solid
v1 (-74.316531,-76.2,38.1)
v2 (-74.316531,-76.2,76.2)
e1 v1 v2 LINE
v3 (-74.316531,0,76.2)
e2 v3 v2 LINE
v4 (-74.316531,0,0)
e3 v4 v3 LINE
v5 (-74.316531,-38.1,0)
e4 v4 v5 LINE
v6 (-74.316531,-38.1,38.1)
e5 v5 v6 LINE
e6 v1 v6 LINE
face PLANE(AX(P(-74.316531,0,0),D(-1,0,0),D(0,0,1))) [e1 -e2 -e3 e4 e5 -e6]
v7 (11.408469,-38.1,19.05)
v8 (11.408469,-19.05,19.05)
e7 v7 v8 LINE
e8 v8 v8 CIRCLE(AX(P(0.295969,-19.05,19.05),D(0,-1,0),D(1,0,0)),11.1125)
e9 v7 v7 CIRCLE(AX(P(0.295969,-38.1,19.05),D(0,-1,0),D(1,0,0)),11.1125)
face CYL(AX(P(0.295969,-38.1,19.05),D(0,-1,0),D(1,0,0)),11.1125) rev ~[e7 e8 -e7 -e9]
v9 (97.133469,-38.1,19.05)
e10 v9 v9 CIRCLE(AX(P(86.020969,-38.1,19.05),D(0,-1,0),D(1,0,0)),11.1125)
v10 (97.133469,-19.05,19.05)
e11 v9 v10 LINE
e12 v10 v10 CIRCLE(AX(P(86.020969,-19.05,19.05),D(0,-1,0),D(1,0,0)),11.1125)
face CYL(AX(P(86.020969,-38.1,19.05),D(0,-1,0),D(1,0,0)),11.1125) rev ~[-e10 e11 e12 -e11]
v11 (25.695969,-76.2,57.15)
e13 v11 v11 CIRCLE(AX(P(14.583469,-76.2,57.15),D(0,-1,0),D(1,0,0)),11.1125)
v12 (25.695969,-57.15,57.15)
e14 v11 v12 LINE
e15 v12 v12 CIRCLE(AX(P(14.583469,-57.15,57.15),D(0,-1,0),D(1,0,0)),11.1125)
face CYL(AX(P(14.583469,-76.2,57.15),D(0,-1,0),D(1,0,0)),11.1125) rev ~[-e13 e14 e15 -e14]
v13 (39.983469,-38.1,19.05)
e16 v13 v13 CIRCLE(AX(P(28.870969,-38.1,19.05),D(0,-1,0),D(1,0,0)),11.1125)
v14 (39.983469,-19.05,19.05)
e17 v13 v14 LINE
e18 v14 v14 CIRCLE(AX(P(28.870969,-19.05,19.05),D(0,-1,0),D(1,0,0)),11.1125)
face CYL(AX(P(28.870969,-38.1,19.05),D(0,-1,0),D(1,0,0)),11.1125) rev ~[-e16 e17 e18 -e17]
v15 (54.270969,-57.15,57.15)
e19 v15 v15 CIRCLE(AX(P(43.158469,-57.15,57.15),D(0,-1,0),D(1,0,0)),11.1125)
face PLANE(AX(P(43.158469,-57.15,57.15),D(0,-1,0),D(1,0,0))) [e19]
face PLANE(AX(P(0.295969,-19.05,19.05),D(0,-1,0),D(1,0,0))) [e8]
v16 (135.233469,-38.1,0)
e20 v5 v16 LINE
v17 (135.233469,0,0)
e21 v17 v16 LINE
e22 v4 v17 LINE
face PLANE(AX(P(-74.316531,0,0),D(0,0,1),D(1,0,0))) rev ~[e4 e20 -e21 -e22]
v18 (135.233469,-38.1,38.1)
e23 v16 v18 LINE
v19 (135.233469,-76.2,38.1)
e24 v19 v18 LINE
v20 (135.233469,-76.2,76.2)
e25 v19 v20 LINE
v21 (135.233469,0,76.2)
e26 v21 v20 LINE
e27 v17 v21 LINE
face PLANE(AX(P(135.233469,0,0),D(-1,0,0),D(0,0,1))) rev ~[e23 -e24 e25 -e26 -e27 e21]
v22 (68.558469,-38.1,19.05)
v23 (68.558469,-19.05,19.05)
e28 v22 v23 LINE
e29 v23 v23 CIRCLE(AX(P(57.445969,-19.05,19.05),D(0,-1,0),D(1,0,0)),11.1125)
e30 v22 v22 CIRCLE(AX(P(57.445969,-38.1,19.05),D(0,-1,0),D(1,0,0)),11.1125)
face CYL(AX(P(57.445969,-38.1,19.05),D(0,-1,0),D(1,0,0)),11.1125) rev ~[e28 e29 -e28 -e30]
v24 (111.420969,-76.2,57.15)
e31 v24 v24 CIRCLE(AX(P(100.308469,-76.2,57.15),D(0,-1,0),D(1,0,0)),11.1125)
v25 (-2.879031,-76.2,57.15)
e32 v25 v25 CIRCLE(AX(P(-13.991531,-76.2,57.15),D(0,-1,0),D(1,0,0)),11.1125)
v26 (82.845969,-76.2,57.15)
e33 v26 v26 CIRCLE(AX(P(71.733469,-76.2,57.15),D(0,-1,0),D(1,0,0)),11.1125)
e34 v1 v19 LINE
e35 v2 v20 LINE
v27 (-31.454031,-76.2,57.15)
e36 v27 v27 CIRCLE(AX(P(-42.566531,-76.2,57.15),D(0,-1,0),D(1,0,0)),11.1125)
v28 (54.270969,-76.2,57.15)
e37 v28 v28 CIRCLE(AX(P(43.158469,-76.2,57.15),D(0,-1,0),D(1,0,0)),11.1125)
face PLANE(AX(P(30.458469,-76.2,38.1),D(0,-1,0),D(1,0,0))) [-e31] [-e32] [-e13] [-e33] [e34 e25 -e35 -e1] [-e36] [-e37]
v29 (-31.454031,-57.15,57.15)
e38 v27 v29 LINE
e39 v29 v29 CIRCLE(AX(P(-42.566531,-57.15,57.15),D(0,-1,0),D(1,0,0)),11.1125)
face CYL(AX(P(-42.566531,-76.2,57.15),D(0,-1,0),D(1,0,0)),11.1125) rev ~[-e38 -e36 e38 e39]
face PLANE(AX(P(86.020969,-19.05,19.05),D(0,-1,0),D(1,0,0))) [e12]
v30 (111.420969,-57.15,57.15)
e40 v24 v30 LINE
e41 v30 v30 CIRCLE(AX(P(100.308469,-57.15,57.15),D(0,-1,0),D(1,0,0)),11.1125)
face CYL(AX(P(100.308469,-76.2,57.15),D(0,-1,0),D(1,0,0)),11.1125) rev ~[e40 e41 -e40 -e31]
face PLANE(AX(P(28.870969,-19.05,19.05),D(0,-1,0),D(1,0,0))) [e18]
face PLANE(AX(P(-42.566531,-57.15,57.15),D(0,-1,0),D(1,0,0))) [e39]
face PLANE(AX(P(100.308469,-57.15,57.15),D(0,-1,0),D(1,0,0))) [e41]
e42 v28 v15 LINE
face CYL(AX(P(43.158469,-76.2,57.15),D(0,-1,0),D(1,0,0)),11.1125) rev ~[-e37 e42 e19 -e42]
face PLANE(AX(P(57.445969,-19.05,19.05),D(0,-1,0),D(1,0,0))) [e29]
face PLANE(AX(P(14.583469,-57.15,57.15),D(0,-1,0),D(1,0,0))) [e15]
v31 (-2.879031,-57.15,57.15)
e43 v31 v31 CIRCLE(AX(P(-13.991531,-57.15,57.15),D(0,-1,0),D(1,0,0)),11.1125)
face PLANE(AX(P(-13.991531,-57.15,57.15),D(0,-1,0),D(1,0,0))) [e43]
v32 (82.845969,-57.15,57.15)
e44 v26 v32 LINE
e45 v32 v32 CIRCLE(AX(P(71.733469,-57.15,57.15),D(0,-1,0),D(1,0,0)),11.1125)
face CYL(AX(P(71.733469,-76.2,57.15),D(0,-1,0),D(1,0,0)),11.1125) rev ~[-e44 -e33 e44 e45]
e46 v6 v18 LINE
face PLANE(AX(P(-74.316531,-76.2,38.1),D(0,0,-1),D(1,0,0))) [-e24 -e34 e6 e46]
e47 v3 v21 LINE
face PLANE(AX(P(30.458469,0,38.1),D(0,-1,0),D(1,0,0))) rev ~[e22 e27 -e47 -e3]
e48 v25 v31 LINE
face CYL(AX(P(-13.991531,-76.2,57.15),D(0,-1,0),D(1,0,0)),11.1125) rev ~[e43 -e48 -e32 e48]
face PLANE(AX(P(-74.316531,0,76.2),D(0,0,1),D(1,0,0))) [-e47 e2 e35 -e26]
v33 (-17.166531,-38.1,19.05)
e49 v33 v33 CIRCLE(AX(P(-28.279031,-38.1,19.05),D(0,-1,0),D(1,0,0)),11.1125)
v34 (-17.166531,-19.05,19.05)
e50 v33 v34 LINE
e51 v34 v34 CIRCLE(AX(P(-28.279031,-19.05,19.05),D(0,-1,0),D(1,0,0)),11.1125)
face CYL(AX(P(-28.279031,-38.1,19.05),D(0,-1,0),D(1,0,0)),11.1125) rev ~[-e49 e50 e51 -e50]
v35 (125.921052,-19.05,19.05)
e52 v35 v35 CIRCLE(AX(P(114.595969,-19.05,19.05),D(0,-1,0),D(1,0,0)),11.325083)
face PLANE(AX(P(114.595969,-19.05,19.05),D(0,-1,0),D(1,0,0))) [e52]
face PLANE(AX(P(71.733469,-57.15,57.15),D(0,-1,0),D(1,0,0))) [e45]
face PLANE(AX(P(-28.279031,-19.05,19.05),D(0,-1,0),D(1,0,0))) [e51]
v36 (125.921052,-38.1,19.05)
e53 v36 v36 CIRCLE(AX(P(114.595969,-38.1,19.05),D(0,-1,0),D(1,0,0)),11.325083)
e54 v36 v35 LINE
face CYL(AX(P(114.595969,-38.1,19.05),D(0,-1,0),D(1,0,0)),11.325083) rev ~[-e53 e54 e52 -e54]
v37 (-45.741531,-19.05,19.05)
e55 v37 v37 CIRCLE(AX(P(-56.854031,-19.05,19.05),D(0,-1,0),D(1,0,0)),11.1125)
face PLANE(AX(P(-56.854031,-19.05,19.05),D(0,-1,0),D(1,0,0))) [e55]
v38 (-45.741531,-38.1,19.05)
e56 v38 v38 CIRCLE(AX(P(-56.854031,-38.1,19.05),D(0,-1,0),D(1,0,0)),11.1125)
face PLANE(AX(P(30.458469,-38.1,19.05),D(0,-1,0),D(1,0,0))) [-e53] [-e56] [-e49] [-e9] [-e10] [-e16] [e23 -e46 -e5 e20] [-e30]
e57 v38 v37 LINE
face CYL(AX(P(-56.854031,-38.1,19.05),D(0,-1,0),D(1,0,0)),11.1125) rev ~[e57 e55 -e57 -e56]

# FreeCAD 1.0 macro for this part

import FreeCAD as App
import Part
import Sketcher
from FreeCAD import Vector
Q = App.Units.Quantity

doc = App.newDocument("Part")
params = doc.addObject("Spreadsheet::Sheet", "Params")
for row, (alias, value) in enumerate([
    ("sketch1_height", "3 in"),
    ("sketch1_width", "8.25 in"),
    ("pad1_length", "3 in"),
    ("sketch2_height", "1.5 in"),
    ("sketch2_width", "8.25 in"),
    ("pocket1_length", "1.5 in"),
    ("sketch3_diameter", "0.875 in"),
    ("pocket2_length", "0.75 in"),
    ("sketch4_diameter", "0.875 in"),
    ("pocket3_length", "0.75 in"),
], start=1):
    params.set(f"A{row}", alias)
    params.set(f"B{row}", "=" + value)
    params.setAlias(f"B{row}", alias)

body = doc.addObject("PartDesign::Body", "Body")

# Sketch on XZ plane
sketch1 = body.newObject("Sketcher::SketchObject", "Sketch")
sketch1.AttachmentSupport = (doc.getObject("XZ_Plane"), [""])
sketch1.MapMode = "FlatFace"
sketch1.addGeometry(Part.LineSegment(Vector(-74, 76, 0), Vector(-74, 0, 0)), False)
sketch1.addGeometry(Part.LineSegment(Vector(-74, 0, 0), Vector(135, 0, 0)), False)
sketch1.addGeometry(Part.LineSegment(Vector(135, 0, 0), Vector(135, 76, 0)), False)
sketch1.addGeometry(Part.LineSegment(Vector(135, 76, 0), Vector(-74, 76, 0)), False)
sketch1.addConstraint(Sketcher.Constraint("Coincident", 0, 2, 1, 1))
sketch1.addConstraint(Sketcher.Constraint("Coincident", 1, 2, 2, 1))
sketch1.addConstraint(Sketcher.Constraint("Coincident", 2, 2, 3, 1))
sketch1.addConstraint(Sketcher.Constraint("Coincident", 3, 2, 0, 1))
sketch1.addConstraint(Sketcher.Constraint("Vertical", 0))
sketch1.addConstraint(Sketcher.Constraint("Horizontal", 1))
sketch1.addConstraint(Sketcher.Constraint("Vertical", 2))
sketch1.addConstraint(Sketcher.Constraint("Horizontal", 3))
sketch1.addConstraint(Sketcher.Constraint("PointOnObject", 0, 2, -1))
sketch1.addConstraint(Sketcher.Constraint("DistanceY", 0, 2, 0, 1, Q("3 in")))
sketch1.addConstraint(Sketcher.Constraint("DistanceX", 1, 1, 1, 2, Q("8.25 in")))
sketch1.addConstraint(Sketcher.Constraint("DistanceX", 0, 2, -1, 1, 74.316531))
sketch1.setExpression("Constraints[9]", "Params.sketch1_height")
sketch1.setExpression("Constraints[10]", "Params.sketch1_width")
pad1 = body.newObject("PartDesign::Pad", "Pad")
pad1.Profile = sketch1
pad1.setExpression("Length", "Params.pad1_length")

# Sketch on XZ plane
sketch2 = body.newObject("Sketcher::SketchObject", "Sketch001")
sketch2.AttachmentSupport = (doc.getObject("XZ_Plane"), [""])
sketch2.MapMode = "FlatFace"
sketch2.AttachmentOffset = App.Placement(Vector(0, 0, 3 * 25.4), App.Rotation())
sketch2.addGeometry(Part.LineSegment(Vector(-74, 38, 0), Vector(-74, 0, 0)), False)
sketch2.addGeometry(Part.LineSegment(Vector(-74, 0, 0), Vector(135, 0, 0)), False)
sketch2.addGeometry(Part.LineSegment(Vector(135, 0, 0), Vector(135, 38, 0)), False)
sketch2.addGeometry(Part.LineSegment(Vector(135, 38, 0), Vector(-74, 38, 0)), False)
sketch2.addConstraint(Sketcher.Constraint("Coincident", 0, 2, 1, 1))
sketch2.addConstraint(Sketcher.Constraint("Coincident", 1, 2, 2, 1))
sketch2.addConstraint(Sketcher.Constraint("Coincident", 2, 2, 3, 1))
sketch2.addConstraint(Sketcher.Constraint("Coincident", 3, 2, 0, 1))
sketch2.addConstraint(Sketcher.Constraint("Vertical", 0))
sketch2.addConstraint(Sketcher.Constraint("Horizontal", 1))
sketch2.addConstraint(Sketcher.Constraint("Vertical", 2))
sketch2.addConstraint(Sketcher.Constraint("Horizontal", 3))
sketch2.addConstraint(Sketcher.Constraint("PointOnObject", 0, 2, -1))
sketch2.addConstraint(Sketcher.Constraint("DistanceY", 0, 2, 0, 1, Q("1.5 in")))
sketch2.addConstraint(Sketcher.Constraint("DistanceX", 1, 1, 1, 2, Q("8.25 in")))
sketch2.addConstraint(Sketcher.Constraint("DistanceX", 0, 2, -1, 1, 74.316531))
sketch2.setExpression("Constraints[9]", "Params.sketch2_height")
sketch2.setExpression("Constraints[10]", "Params.sketch2_width")
pocket1 = body.newObject("PartDesign::Pocket", "Pocket")
pocket1.Profile = sketch2
pocket1.setExpression("Length", "Params.pocket1_length")

# Sketch on XZ plane
sketch3 = body.newObject("Sketcher::SketchObject", "Sketch002")
sketch3.AttachmentSupport = (doc.getObject("XZ_Plane"), [""])
sketch3.MapMode = "FlatFace"
sketch3.AttachmentOffset = App.Placement(Vector(0, 0, 1.5 * 25.4), App.Rotation())
sketch3.addGeometry(Part.Circle(Vector(-57, 19, 0), Vector(0, 0, 1), 11), False)
sketch3.addGeometry(Part.Circle(Vector(-28, 19, 0), Vector(0, 0, 1), 11), False)
sketch3.addGeometry(Part.Circle(Vector(0, 19, 0), Vector(0, 0, 1), 11), False)
sketch3.addGeometry(Part.Circle(Vector(57, 19, 0), Vector(0, 0, 1), 11), False)
sketch3.addGeometry(Part.Circle(Vector(86, 19, 0), Vector(0, 0, 1), 11), False)
sketch3.addGeometry(Part.Circle(Vector(115, 19, 0), Vector(0, 0, 1), 11), False)
sketch3.addGeometry(Part.Circle(Vector(29, 19, 0), Vector(0, 0, 1), 11), False)
sketch3.addConstraint(Sketcher.Constraint("Equal", 0, 1))
sketch3.addConstraint(Sketcher.Constraint("Equal", 1, 2))
sketch3.addConstraint(Sketcher.Constraint("Equal", 2, 3))
sketch3.addConstraint(Sketcher.Constraint("Equal", 3, 4))
sketch3.addConstraint(Sketcher.Constraint("Equal", 4, 6))
sketch3.addConstraint(Sketcher.Constraint("Horizontal", 0, 3, 1, 3))
sketch3.addConstraint(Sketcher.Constraint("Horizontal", 1, 3, 2, 3))
sketch3.addConstraint(Sketcher.Constraint("Horizontal", 2, 3, 3, 3))
sketch3.addConstraint(Sketcher.Constraint("Horizontal", 3, 3, 4, 3))
sketch3.addConstraint(Sketcher.Constraint("Horizontal", 4, 3, 5, 3))
sketch3.addConstraint(Sketcher.Constraint("Horizontal", 5, 3, 6, 3))
sketch3.addConstraint(Sketcher.Constraint("Diameter", 0, Q("0.875 in")))
sketch3.addConstraint(Sketcher.Constraint("DistanceX", 0, 3, 3, 3, Q("4.5 in")))
sketch3.addConstraint(Sketcher.Constraint("DistanceX", 1, 3, 4, 3, Q("4.5 in")))
sketch3.addConstraint(Sketcher.Constraint("DistanceX", 2, 3, 5, 3, Q("4.5 in")))
sketch3.addConstraint(Sketcher.Constraint("DistanceY", -1, 1, 0, 3, Q("0.75 in")))
sketch3.addConstraint(Sketcher.Constraint("DistanceX", 0, 3, 2, 3, Q("2.25 in")))
sketch3.addConstraint(Sketcher.Constraint("DistanceX", 6, 3, 4, 3, Q("2.25 in")))
sketch3.addConstraint(Sketcher.Constraint("DistanceX", 0, 3, 1, 3, Q("1.125 in")))
sketch3.addConstraint(Sketcher.Constraint("Diameter", 5, 22.650166))
sketch3.addConstraint(Sketcher.Constraint("DistanceX", 0, 3, -1, 1, 56.854031))
sketch3.setExpression("Constraints[11]", "Params.sketch3_diameter")
pocket2 = body.newObject("PartDesign::Pocket", "Pocket001")
pocket2.Profile = sketch3
pocket2.setExpression("Length", "Params.pocket2_length")

# Sketch on XZ plane
sketch4 = body.newObject("Sketcher::SketchObject", "Sketch003")
sketch4.AttachmentSupport = (doc.getObject("XZ_Plane"), [""])
sketch4.MapMode = "FlatFace"
sketch4.AttachmentOffset = App.Placement(Vector(0, 0, 3 * 25.4), App.Rotation())
sketch4.addGeometry(Part.Circle(Vector(-43, 57, 0), Vector(0, 0, 1), 11), False)
sketch4.addGeometry(Part.Circle(Vector(-14, 57, 0), Vector(0, 0, 1), 11), False)
sketch4.addGeometry(Part.Circle(Vector(15, 57, 0), Vector(0, 0, 1), 11), False)
sketch4.addGeometry(Part.Circle(Vector(43, 57, 0), Vector(0, 0, 1), 11), False)
sketch4.addGeometry(Part.Circle(Vector(72, 57, 0), Vector(0, 0, 1), 11), False)
sketch4.addGeometry(Part.Circle(Vector(100, 57, 0), Vector(0, 0, 1), 11), False)
sketch4.addConstraint(Sketcher.Constraint("Equal", 0, 1))
sketch4.addConstraint(Sketcher.Constraint("Equal", 1, 2))
sketch4.addConstraint(Sketcher.Constraint("Equal", 2, 3))
sketch4.addConstraint(Sketcher.Constraint("Equal", 3, 4))
sketch4.addConstraint(Sketcher.Constraint("Equal", 4, 5))
sketch4.addConstraint(Sketcher.Constraint("Horizontal", 0, 3, 1, 3))
sketch4.addConstraint(Sketcher.Constraint("Horizontal", 1, 3, 2, 3))
sketch4.addConstraint(Sketcher.Constraint("Horizontal", 2, 3, 3, 3))
sketch4.addConstraint(Sketcher.Constraint("Horizontal", 3, 3, 4, 3))
sketch4.addConstraint(Sketcher.Constraint("Horizontal", 4, 3, 5, 3))
sketch4.addConstraint(Sketcher.Constraint("Diameter", 0, Q("0.875 in")))
sketch4.addConstraint(Sketcher.Constraint("DistanceX", 0, 3, 4, 3, Q("4.5 in")))
sketch4.addConstraint(Sketcher.Constraint("DistanceX", 1, 3, 5, 3, Q("4.5 in")))
sketch4.addConstraint(Sketcher.Constraint("DistanceY", -1, 1, 0, 3, Q("2.25 in")))
sketch4.addConstraint(Sketcher.Constraint("DistanceX", 0, 3, 2, 3, Q("2.25 in")))
sketch4.addConstraint(Sketcher.Constraint("DistanceX", 1, 3, 3, 3, Q("2.25 in")))
sketch4.addConstraint(Sketcher.Constraint("DistanceX", 0, 3, 1, 3, Q("1.125 in")))
sketch4.addConstraint(Sketcher.Constraint("DistanceX", 0, 3, -1, 1, 42.566531))
sketch4.setExpression("Constraints[10]", "Params.sketch4_diameter")
pocket3 = body.newObject("PartDesign::Pocket", "Pocket002")
pocket3.Profile = sketch4
pocket3.setExpression("Length", "Params.pocket3_length")

doc.recompute()
